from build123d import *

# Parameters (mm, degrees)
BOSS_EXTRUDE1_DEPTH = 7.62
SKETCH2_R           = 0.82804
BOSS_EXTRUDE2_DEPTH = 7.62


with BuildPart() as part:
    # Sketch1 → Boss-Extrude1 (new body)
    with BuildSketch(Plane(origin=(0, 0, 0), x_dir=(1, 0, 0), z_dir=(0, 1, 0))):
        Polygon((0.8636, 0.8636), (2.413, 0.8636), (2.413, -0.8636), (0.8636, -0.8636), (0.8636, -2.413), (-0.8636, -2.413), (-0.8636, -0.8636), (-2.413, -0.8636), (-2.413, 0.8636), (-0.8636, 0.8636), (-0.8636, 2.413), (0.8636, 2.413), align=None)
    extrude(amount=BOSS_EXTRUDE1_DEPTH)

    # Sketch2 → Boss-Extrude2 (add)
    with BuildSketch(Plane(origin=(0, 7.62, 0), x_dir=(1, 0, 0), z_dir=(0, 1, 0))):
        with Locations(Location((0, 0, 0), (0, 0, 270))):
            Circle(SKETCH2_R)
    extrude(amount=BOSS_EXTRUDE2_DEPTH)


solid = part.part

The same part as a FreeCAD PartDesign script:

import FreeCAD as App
import Part
import Sketcher

V = App.Vector
Q = App.Units.Quantity

doc = App.newDocument("Part")
params = doc.addObject("Spreadsheet::Sheet", "Params")
for row, (alias, value) in enumerate([
    ("sketch1_width", "0.061 in"),
    ("sketch1_width2", "0.068 in"),
    ("pad1_length", "0.3 in"),
    ("pad2_length", "0.3 in"),
], start=1):
    params.set(f"A{row}", alias)
    params.set(f"B{row}", "=" + value)
    params.setAlias(f"B{row}", alias)

body = doc.addObject("PartDesign::Body", "Body")

sketch1 = doc.addObject("Sketcher::SketchObject", "Sketch")
body.addObject(sketch1)
sketch1.AttachmentSupport = (doc.XZ_Plane, [""])
sketch1.MapMode = "FlatFace"
sketch1.addGeometry([
    Part.LineSegment(V(2.4, -0.9, 0), V(0.9, -0.9, 0)),
    Part.LineSegment(V(0.9, -0.9, 0), V(0.9, -2.4, 0)),
    Part.LineSegment(V(0.9, -2.4, 0), V(-0.9, -2.4, 0)),
    Part.LineSegment(V(-0.9, -2.4, 0), V(-0.9, -0.9, 0)),
    Part.LineSegment(V(-0.9, -0.9, 0), V(-2.4, -0.9, 0)),
    Part.LineSegment(V(-2.4, -0.9, 0), V(-2.4, 0.9, 0)),
    Part.LineSegment(V(-2.4, 0.9, 0), V(-0.9, 0.9, 0)),
    Part.LineSegment(V(-0.9, 0.9, 0), V(-0.9, 2.4, 0)),
    Part.LineSegment(V(-0.9, 2.4, 0), V(0.9, 2.4, 0)),
    Part.LineSegment(V(0.9, 2.4, 0), V(0.9, 0.9, 0)),
    Part.LineSegment(V(0.9, 0.9, 0), V(2.4, 0.9, 0)),
    Part.LineSegment(V(2.4, 0.9, 0), V(2.4, -0.9, 0)),
], False)
sketch1.addConstraint([
    Sketcher.Constraint("Coincident", 0, 2, 1, 1),
    Sketcher.Constraint("Coincident", 1, 2, 2, 1),
    Sketcher.Constraint("Coincident", 2, 2, 3, 1),
    Sketcher.Constraint("Coincident", 3, 2, 4, 1),
    Sketcher.Constraint("Coincident", 4, 2, 5, 1),
    Sketcher.Constraint("Coincident", 5, 2, 6, 1),
    Sketcher.Constraint("Coincident", 6, 2, 7, 1),
    Sketcher.Constraint("Coincident", 7, 2, 8, 1),
    Sketcher.Constraint("Coincident", 8, 2, 9, 1),
    Sketcher.Constraint("Coincident", 9, 2, 10, 1),
    Sketcher.Constraint("Coincident", 10, 2, 11, 1),
    Sketcher.Constraint("Coincident", 11, 2, 0, 1),
    Sketcher.Constraint("Horizontal", 0),
    Sketcher.Constraint("Vertical", 1),
    Sketcher.Constraint("Horizontal", 2),
    Sketcher.Constraint("Vertical", 3),
    Sketcher.Constraint("Horizontal", 4),
    Sketcher.Constraint("Vertical", 5),
    Sketcher.Constraint("Horizontal", 6),
    Sketcher.Constraint("Vertical", 7),
    Sketcher.Constraint("Horizontal", 8),
    Sketcher.Constraint("Vertical", 9),
    Sketcher.Constraint("Horizontal", 10),
    Sketcher.Constraint("Vertical", 11),
    Sketcher.Constraint("Symmetric", 0, 2, 6, 2, -1, 1),
    Sketcher.Constraint("Symmetric", 2, 2, 8, 2, -1, 1),
    Sketcher.Constraint("Symmetric", 4, 2, 10, 2, -1, 1),
    Sketcher.Constraint("Symmetric", 0, 2, 3, 2, -2),
    Sketcher.Constraint("Equal", 10, 1),
    Sketcher.Constraint("Equal", 8, 5),
    Sketcher.Constraint("DistanceX", 0, 2, 0, 1, Q("0.061 in")),
    Sketcher.Constraint("DistanceX", 2, 2, 2, 1, Q("0.068 in")),
])
sketch1.setExpression("Constraints[30]", "Params.sketch1_width")
sketch1.setExpression("Constraints[31]", "Params.sketch1_width2")
pad1 = doc.addObject("PartDesign::Pad", "Pad")
body.addObject(pad1)
pad1.Profile = sketch1
pad1.setExpression("Length", "Params.pad1_length")
pad1.Reversed = True

sketch2 = doc.addObject("Sketcher::SketchObject", "Sketch001")
body.addObject(sketch2)
sketch2.AttachmentSupport = (doc.XZ_Plane, [""])
sketch2.MapMode = "FlatFace"
sketch2.AttachmentOffset = App.Placement(V(0, 0, -0.3 * 25.4), App.Rotation())
sketch2.addGeometry(Part.Circle(V(0, 0, 0), V(0, 0, 1), 0.8), False)
sketch2.addConstraint([
    Sketcher.Constraint("Coincident", 0, 3, -1, 1),
    Sketcher.Constraint("Diameter", 0, Q("0.0652 in")),
])
pad2 = doc.addObject("PartDesign::Pad", "Pad001")
body.addObject(pad2)
pad2.Profile = sketch2
pad2.setExpression("Length", "Params.pad2_length")
pad2.Reversed = True

doc.recompute()
